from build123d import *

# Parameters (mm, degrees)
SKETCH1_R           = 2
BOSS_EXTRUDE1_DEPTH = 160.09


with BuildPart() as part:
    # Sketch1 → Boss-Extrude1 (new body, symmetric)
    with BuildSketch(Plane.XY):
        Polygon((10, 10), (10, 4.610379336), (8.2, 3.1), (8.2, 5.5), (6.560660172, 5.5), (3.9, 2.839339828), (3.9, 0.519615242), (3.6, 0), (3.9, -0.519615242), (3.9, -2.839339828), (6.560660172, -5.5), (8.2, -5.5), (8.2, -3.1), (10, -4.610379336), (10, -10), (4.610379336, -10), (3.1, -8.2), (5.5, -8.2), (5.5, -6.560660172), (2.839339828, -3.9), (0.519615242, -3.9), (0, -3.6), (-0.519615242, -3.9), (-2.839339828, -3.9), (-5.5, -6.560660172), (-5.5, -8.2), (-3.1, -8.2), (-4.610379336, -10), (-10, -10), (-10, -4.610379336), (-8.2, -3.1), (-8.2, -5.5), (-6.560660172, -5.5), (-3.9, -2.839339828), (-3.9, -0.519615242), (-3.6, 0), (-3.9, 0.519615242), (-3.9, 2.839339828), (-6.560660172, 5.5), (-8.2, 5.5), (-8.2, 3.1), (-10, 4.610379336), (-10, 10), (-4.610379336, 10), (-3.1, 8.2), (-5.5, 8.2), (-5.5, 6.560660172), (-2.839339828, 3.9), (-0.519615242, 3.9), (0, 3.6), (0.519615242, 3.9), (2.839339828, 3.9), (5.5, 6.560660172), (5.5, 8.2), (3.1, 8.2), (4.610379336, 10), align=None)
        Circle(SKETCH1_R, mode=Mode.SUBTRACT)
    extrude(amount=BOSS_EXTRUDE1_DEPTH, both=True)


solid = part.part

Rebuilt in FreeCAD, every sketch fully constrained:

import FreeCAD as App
import Part
import Sketcher

V = App.Vector
Q = App.Units.Quantity


def add_polygon(sketch, points):
    """Adds a closed chain of lines whose ends are joined by coincident constraints."""
    first, n = sketch.GeometryCount, len(points)
    for a, b in zip(points, points[1:] + points[:1]):
        sketch.addGeometry(Part.LineSegment(App.Vector(*a, 0), App.Vector(*b, 0)), False)
    for i in range(n):
        sketch.addConstraint(Sketcher.Constraint("Coincident", first + i, 2, first + (i + 1) % n, 1))

doc = App.newDocument("Part")
body = doc.addObject("PartDesign::Body", "Body")

# Sketch on XY plane
sketch1 = body.newObject("Sketcher::SketchObject", "Sketch")
sketch1.AttachmentSupport = (doc.getObject("XY_Plane"), [""])
sketch1.MapMode = "FlatFace"
add_polygon(sketch1, [(10, 4.6), (10, 10), (4.6, 10), (3.1, 8.2), (5.5, 8.2), (5.5, 6.6), (2.8, 3.9), (0.5, 3.9), (0, 3.6), (-0.5, 3.9), (-2.8, 3.9), (-5.5, 6.6), (-5.5, 8.2), (-3.1, 8.2), (-4.6, 10), (-10, 10), (-10, 4.6), (-8.2, 3.1), (-8.2, 5.5), (-6.6, 5.5), (-3.9, 2.8), (-3.9, 0.5), (-3.6, 0), (-3.9, -0.5), (-3.9, -2.8), (-6.6, -5.5), (-8.2, -5.5), (-8.2, -3.1), (-10, -4.6), (-10, -10), (-4.6, -10), (-3.1, -8.2), (-5.5, -8.2), (-5.5, -6.6), (-2.8, -3.9), (-0.5, -3.9), (0, -3.6), (0.5, -3.9), (2.8, -3.9), (5.5, -6.6), (5.5, -8.2), (3.1, -8.2), (4.6, -10), (10, -10), (10, -4.6), (8.2, -3.1), (8.2, -5.5), (6.6, -5.5), (3.9, -2.8), (3.9, -0.5), (3.6, 0), (3.9, 0.5), (3.9, 2.8), (6.6, 5.5), (8.2, 5.5), (8.2, 3.1)])  # lines 0-55
sketch1.addGeometry(Part.Circle(V(0, 0, 0), V(0, 0, 1), 2), False)  # 56
sketch1.addConstraint(Sketcher.Constraint("Vertical", 0))
sketch1.addConstraint(Sketcher.Constraint("Horizontal", 1))
sketch1.addConstraint(Sketcher.Constraint("Horizontal", 3))
sketch1.addConstraint(Sketcher.Constraint("Vertical", 4))
sketch1.addConstraint(Sketcher.Constraint("Horizontal", 6))
sketch1.addConstraint(Sketcher.Constraint("Horizontal", 9))
sketch1.addConstraint(Sketcher.Constraint("Vertical", 11))
sketch1.addConstraint(Sketcher.Constraint("Horizontal", 12))
sketch1.addConstraint(Sketcher.Constraint("Horizontal", 14))
sketch1.addConstraint(Sketcher.Constraint("Vertical", 15))
sketch1.addConstraint(Sketcher.Constraint("Vertical", 17))
sketch1.addConstraint(Sketcher.Constraint("Horizontal", 18))
sketch1.addConstraint(Sketcher.Constraint("Vertical", 20))
sketch1.addConstraint(Sketcher.Constraint("Vertical", 23))
sketch1.addConstraint(Sketcher.Constraint("Horizontal", 25))
sketch1.addConstraint(Sketcher.Constraint("Vertical", 26))
sketch1.addConstraint(Sketcher.Constraint("Vertical", 28))
sketch1.addConstraint(Sketcher.Constraint("Horizontal", 29))
sketch1.addConstraint(Sketcher.Constraint("Horizontal", 31))
sketch1.addConstraint(Sketcher.Constraint("Vertical", 32))
sketch1.addConstraint(Sketcher.Constraint("Horizontal", 34))
sketch1.addConstraint(Sketcher.Constraint("Horizontal", 37))
sketch1.addConstraint(Sketcher.Constraint("Vertical", 39))
sketch1.addConstraint(Sketcher.Constraint("Horizontal", 40))
sketch1.addConstraint(Sketcher.Constraint("Horizontal", 42))
sketch1.addConstraint(Sketcher.Constraint("Vertical", 43))
sketch1.addConstraint(Sketcher.Constraint("Vertical", 45))
sketch1.addConstraint(Sketcher.Constraint("Horizontal", 46))
sketch1.addConstraint(Sketcher.Constraint("Vertical", 48))
sketch1.addConstraint(Sketcher.Constraint("Vertical", 51))
sketch1.addConstraint(Sketcher.Constraint("Horizontal", 53))
sketch1.addConstraint(Sketcher.Constraint("Vertical", 54))
sketch1.addConstraint(Sketcher.Constraint("Coincident", 56, 3, -1, 1))
sketch1.addConstraint(Sketcher.Constraint("Symmetric", 0, 2, 28, 2, -1, 1))
sketch1.addConstraint(Sketcher.Constraint("Symmetric", 2, 2, 30, 2, -1, 1))
sketch1.addConstraint(Sketcher.Constraint("Symmetric", 4, 2, 32, 2, -1, 1))
sketch1.addConstraint(Sketcher.Constraint("Symmetric", 5, 2, 33, 2, -1, 1))
sketch1.addConstraint(Sketcher.Constraint("Symmetric", 7, 2, 35, 2, -1, 1))
sketch1.addConstraint(Sketcher.Constraint("Symmetric", 8, 2, 36, 2, -1, 1))
sketch1.addConstraint(Sketcher.Constraint("Symmetric", 10, 2, 38, 2, -1, 1))
sketch1.addConstraint(Sketcher.Constraint("Symmetric", 12, 2, 40, 2, -1, 1))
sketch1.addConstraint(Sketcher.Constraint("Symmetric", 13, 2, 41, 2, -1, 1))
sketch1.addConstraint(Sketcher.Constraint("Symmetric", 15, 2, 43, 2, -1, 1))
sketch1.addConstraint(Sketcher.Constraint("Symmetric", 16, 2, 44, 2, -1, 1))
sketch1.addConstraint(Sketcher.Constraint("Symmetric", 18, 2, 46, 2, -1, 1))
sketch1.addConstraint(Sketcher.Constraint("Symmetric", 19, 2, 47, 2, -1, 1))
sketch1.addConstraint(Sketcher.Constraint("Symmetric", 21, 2, 49, 2, -1, 1))
sketch1.addConstraint(Sketcher.Constraint("Symmetric", 22, 2, 50, 2, -1, 1))
sketch1.addConstraint(Sketcher.Constraint("Symmetric", 24, 2, 52, 2, -1, 1))
sketch1.addConstraint(Sketcher.Constraint("Symmetric", 26, 2, 54, 2, -1, 1))
sketch1.addConstraint(Sketcher.Constraint("Symmetric", 6, 2, 8, 2, -2))
sketch1.addConstraint(Sketcher.Constraint("Symmetric", 4, 2, 10, 2, -2))
sketch1.addConstraint(Sketcher.Constraint("Symmetric", 2, 2, 12, 2, -2))
sketch1.addConstraint(Sketcher.Constraint("Symmetric", 1, 2, 13, 2, -2))
sketch1.addConstraint(Sketcher.Constraint("Symmetric", 27, 2, 43, 2, -2))
sketch1.addConstraint(Sketcher.Constraint("Symmetric", 26, 2, 44, 2, -2))
sketch1.addConstraint(Sketcher.Constraint("Symmetric", 24, 2, 46, 2, -2))
sketch1.addConstraint(Sketcher.Constraint("Symmetric", 23, 2, 47, 2, -2))
sketch1.addConstraint(Sketcher.Constraint("PointOnObject", 7, 2, -2))
sketch1.addConstraint(Sketcher.Constraint("PointOnObject", 21, 2, -1))
sketch1.addConstraint(Sketcher.Constraint("Perpendicular", 5, 10))
sketch1.addConstraint(Sketcher.Constraint("Perpendicular", 2, 16))
sketch1.addConstraint(Sketcher.Constraint("Parallel", 10, 19))
sketch1.addConstraint(Sketcher.Constraint("Perpendicular", 7, 21))
sketch1.addConstraint(Sketcher.Constraint("Perpendicular", 8, 22))
sketch1.addConstraint(Sketcher.Constraint("Perpendicular", 19, 24))
sketch1.addConstraint(Sketcher.Constraint("Perpendicular", 16, 30))
sketch1.addConstraint(Sketcher.Constraint("Perpendicular", 21, 35))
sketch1.addConstraint(Sketcher.Constraint("Perpendicular", 33, 38))
sketch1.addConstraint(Sketcher.Constraint("Perpendicular", 35, 49))
sketch1.addConstraint(Sketcher.Constraint("Perpendicular", 47, 52))
sketch1.addConstraint(Sketcher.Constraint("Perpendicular", 41, 55))
sketch1.addConstraint(Sketcher.Constraint("Equal", 42, 0))
sketch1.addConstraint(Sketcher.Constraint("Equal", 53, 4))
sketch1.addConstraint(Sketcher.Constraint("Equal", 40, 17))
sketch1.addConstraint(Sketcher.Constraint("Equal", 37, 20))
sketch1.addConstraint(Sketcher.Constraint("Equal", 13, 16))
sketch1.addConstraint(Sketcher.Constraint("Equal", 10, 19))
sketch1.addConstraint(Sketcher.Constraint("Equal", 8, 21))
sketch1.addConstraint(Sketcher.Constraint("Diameter", 56, Q("4 mm")))
sketch1.addConstraint(Sketcher.Constraint("Angle", 2, Q("-130 deg")))
sketch1.addConstraint(Sketcher.Constraint("Angle", 7, Q("-150 deg")))
sketch1.addConstraint(Sketcher.Constraint("DistanceX", 3, 1, 3, 2, Q("2.4 mm")))
sketch1.addConstraint(Sketcher.Constraint("DistanceX", -1, 1, 0, 2, Q("10 mm")))
sketch1.addConstraint(Sketcher.Constraint("Distance", 7, Q("0.6 mm")))
sketch1.addConstraint(Sketcher.Constraint("DistanceX", -1, 1, 2, 2, Q("3.1 mm")))
sketch1.addConstraint(Sketcher.Constraint("DistanceY", -1, 1, 2, 2, Q("8.2 mm")))
sketch1.addConstraint(Sketcher.Constraint("DistanceY", -1, 1, 5, 2, Q("3.9 mm")))
sketch1.addConstraint(Sketcher.Constraint("DistanceX", 18, 1, 18, 2, Q("1.63934 mm")))
pad1 = body.newObject("PartDesign::Pad", "Pad")
pad1.Profile = sketch1
pad1.Length = 320.18
pad1.Midplane = True

doc.recompute()
